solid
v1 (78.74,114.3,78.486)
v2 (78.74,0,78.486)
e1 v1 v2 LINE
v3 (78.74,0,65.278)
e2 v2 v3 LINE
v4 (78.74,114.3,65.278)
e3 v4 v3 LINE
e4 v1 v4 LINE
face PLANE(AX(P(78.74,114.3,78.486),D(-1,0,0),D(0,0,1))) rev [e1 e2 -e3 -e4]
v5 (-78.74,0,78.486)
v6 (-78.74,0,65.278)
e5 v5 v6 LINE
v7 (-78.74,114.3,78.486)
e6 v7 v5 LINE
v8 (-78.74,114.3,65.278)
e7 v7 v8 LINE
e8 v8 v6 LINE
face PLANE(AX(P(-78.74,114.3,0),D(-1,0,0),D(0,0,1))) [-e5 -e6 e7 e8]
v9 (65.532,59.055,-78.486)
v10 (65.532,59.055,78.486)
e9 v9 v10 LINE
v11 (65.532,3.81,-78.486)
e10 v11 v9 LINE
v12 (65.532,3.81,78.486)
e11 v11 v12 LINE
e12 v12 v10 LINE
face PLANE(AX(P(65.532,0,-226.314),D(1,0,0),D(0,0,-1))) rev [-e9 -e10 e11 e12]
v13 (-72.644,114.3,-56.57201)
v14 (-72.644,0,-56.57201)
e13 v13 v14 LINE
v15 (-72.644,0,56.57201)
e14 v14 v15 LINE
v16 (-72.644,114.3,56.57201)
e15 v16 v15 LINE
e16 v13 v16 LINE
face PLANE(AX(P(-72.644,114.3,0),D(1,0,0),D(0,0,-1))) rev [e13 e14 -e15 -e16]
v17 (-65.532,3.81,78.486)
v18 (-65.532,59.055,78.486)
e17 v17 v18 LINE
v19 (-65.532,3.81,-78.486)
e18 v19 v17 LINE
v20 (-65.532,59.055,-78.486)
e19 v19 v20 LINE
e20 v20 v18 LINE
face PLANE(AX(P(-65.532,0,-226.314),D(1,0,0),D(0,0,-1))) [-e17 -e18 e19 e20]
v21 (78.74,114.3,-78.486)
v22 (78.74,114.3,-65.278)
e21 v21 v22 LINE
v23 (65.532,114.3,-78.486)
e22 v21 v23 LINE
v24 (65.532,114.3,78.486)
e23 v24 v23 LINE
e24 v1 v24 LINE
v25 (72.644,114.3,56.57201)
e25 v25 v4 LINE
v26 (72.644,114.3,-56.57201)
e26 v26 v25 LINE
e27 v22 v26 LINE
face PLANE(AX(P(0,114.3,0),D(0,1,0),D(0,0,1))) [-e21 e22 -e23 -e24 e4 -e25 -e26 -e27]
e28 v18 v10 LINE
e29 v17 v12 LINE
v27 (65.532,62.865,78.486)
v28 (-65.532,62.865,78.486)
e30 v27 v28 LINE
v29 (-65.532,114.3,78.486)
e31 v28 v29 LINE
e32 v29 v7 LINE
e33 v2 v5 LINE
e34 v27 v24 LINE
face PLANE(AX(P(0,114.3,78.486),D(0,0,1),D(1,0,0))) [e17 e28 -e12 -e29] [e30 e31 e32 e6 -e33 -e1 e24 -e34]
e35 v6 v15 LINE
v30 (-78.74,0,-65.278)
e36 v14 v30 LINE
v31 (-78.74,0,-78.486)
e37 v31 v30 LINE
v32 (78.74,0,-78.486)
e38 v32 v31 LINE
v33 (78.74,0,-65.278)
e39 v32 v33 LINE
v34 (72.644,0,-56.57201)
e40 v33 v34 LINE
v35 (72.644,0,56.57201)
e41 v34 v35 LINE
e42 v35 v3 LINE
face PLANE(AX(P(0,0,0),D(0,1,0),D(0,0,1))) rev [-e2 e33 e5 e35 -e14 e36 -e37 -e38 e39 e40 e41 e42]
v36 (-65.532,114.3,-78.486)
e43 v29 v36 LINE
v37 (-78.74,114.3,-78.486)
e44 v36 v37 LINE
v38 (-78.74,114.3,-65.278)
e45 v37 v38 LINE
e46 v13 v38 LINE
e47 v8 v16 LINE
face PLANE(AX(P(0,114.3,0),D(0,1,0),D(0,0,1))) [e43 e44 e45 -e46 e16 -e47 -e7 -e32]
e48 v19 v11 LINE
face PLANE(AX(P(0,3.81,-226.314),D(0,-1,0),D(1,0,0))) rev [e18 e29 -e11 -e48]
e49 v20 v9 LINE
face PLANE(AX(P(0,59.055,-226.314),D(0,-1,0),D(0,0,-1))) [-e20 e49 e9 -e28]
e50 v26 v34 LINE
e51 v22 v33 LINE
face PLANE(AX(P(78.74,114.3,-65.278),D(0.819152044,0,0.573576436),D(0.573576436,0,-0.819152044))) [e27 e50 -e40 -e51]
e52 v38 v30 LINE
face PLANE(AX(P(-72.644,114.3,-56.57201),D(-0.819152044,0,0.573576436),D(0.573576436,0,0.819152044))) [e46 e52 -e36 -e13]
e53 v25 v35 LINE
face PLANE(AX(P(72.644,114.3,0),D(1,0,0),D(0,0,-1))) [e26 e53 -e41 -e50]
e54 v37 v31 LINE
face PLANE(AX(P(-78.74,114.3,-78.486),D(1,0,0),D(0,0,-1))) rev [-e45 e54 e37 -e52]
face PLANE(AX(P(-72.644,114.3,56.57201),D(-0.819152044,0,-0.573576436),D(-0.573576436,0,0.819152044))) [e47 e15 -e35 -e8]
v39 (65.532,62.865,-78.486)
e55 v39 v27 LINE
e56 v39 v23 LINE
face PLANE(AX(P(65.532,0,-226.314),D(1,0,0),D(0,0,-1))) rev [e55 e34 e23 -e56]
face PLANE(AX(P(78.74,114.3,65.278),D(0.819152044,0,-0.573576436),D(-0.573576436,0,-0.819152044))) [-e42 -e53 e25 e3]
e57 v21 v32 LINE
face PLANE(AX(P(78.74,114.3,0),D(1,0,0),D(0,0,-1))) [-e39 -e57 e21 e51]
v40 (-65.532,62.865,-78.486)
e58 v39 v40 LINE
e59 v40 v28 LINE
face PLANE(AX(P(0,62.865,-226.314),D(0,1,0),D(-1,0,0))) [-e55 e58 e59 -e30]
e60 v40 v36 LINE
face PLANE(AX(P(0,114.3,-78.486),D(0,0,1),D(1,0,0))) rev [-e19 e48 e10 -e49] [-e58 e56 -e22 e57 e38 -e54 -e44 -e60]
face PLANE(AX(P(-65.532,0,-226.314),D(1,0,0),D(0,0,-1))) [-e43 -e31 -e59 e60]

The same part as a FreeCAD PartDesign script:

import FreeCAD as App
import Part
import Sketcher

V = App.Vector
Q = App.Units.Quantity

doc = App.newDocument("Part")
body = doc.addObject("PartDesign::Body", "Body")

sketch1 = body.newObject("Sketcher::SketchObject", "Sketch")
sketch1.AttachmentSupport = (doc.getObject("XZ_Plane"), [""])
sketch1.MapMode = "FlatFace"
sketch1.addGeometry(Part.LineSegment(V(-73, 65, 0), V(-79, 65, 0)), False)
sketch1.addGeometry(Part.LineSegment(V(-79, 65, 0), V(-79, 78, 0)), False)
sketch1.addGeometry(Part.LineSegment(V(-79, 78, 0), V(79, 78, 0)), False)
sketch1.addGeometry(Part.LineSegment(V(79, 78, 0), V(79, 65, 0)), False)
sketch1.addGeometry(Part.LineSegment(V(79, 65, 0), V(73, 65, 0)), False)
sketch1.addGeometry(Part.LineSegment(V(73, 65, 0), V(73, -65, 0)), False)
sketch1.addGeometry(Part.LineSegment(V(73, -65, 0), V(79, -65, 0)), False)
sketch1.addGeometry(Part.LineSegment(V(79, -65, 0), V(79, -78, 0)), False)
sketch1.addGeometry(Part.LineSegment(V(79, -78, 0), V(-79, -78, 0)), False)
sketch1.addGeometry(Part.LineSegment(V(-79, -78, 0), V(-79, -65, 0)), False)
sketch1.addGeometry(Part.LineSegment(V(-79, -65, 0), V(-73, -65, 0)), False)
sketch1.addGeometry(Part.LineSegment(V(-73, -65, 0), V(-73, 65, 0)), False)
sketch1.addConstraint(Sketcher.Constraint("Coincident", 0, 2, 1, 1))
sketch1.addConstraint(Sketcher.Constraint("Coincident", 1, 2, 2, 1))
sketch1.addConstraint(Sketcher.Constraint("Coincident", 2, 2, 3, 1))
sketch1.addConstraint(Sketcher.Constraint("Coincident", 3, 2, 4, 1))
sketch1.addConstraint(Sketcher.Constraint("Coincident", 4, 2, 5, 1))
sketch1.addConstraint(Sketcher.Constraint("Coincident", 5, 2, 6, 1))
sketch1.addConstraint(Sketcher.Constraint("Coincident", 6, 2, 7, 1))
sketch1.addConstraint(Sketcher.Constraint("Coincident", 7, 2, 8, 1))
sketch1.addConstraint(Sketcher.Constraint("Coincident", 8, 2, 9, 1))
sketch1.addConstraint(Sketcher.Constraint("Coincident", 9, 2, 10, 1))
sketch1.addConstraint(Sketcher.Constraint("Coincident", 10, 2, 11, 1))
sketch1.addConstraint(Sketcher.Constraint("Coincident", 11, 2, 0, 1))
sketch1.addConstraint(Sketcher.Constraint("Horizontal", 0))
sketch1.addConstraint(Sketcher.Constraint("Vertical", 1))
sketch1.addConstraint(Sketcher.Constraint("Horizontal", 2))
sketch1.addConstraint(Sketcher.Constraint("Vertical", 3))
sketch1.addConstraint(Sketcher.Constraint("Horizontal", 4))
sketch1.addConstraint(Sketcher.Constraint("Vertical", 5))
sketch1.addConstraint(Sketcher.Constraint("Horizontal", 6))
sketch1.addConstraint(Sketcher.Constraint("Vertical", 7))
sketch1.addConstraint(Sketcher.Constraint("Horizontal", 8))
sketch1.addConstraint(Sketcher.Constraint("Vertical", 9))
sketch1.addConstraint(Sketcher.Constraint("Horizontal", 10))
sketch1.addConstraint(Sketcher.Constraint("Vertical", 11))
sketch1.addConstraint(Sketcher.Constraint("Symmetric", 0, 2, 6, 2, -1, 1))
sketch1.addConstraint(Sketcher.Constraint("Symmetric", 2, 2, 8, 2, -1, 1))
sketch1.addConstraint(Sketcher.Constraint("Symmetric", 4, 2, 10, 2, -1, 1))
sketch1.addConstraint(Sketcher.Constraint("Symmetric", 0, 2, 3, 2, -2))
sketch1.addConstraint(Sketcher.Constraint("DistanceX", 2, 1, 2, 2, Q("6.2 in")))
sketch1.addConstraint(Sketcher.Constraint("DistanceX", 0, 2, 0, 1, Q("0.24 in")))
sketch1.addConstraint(Sketcher.Constraint("DistanceY", 1, 1, 1, 2, Q("0.52 in")))
sketch1.addConstraint(Sketcher.Constraint("DistanceY", 5, 2, 5, 1, Q("5.14 in")))
pad1 = body.newObject("PartDesign::Pad", "Pad")
pad1.Profile = sketch1
pad1.Length = Q("4.5 in")
pad1.Reversed = True

sketch2 = body.newObject("Sketcher::SketchObject", "Sketch001")
sketch2.AttachmentSupport = (doc.getObject("XY_Plane"), [""])
sketch2.MapMode = "FlatFace"
sketch2.AttachmentOffset = App.Placement(V(0, 0, 3.09 * 25.4), App.Rotation())
sketch2.addGeometry(Part.LineSegment(V(-66, 59, 0), V(-66, 4, 0)), False)
sketch2.addGeometry(Part.LineSegment(V(-66, 4, 0), V(66, 4, 0)), False)
sketch2.addGeometry(Part.LineSegment(V(66, 4, 0), V(66, 59, 0)), False)
sketch2.addGeometry(Part.LineSegment(V(66, 59, 0), V(-66, 59, 0)), False)
sketch2.addGeometry(Part.LineSegment(V(-66, 114, 0), V(-66, 63, 0)), False)
sketch2.addGeometry(Part.LineSegment(V(-66, 63, 0), V(66, 63, 0)), False)
sketch2.addGeometry(Part.LineSegment(V(66, 63, 0), V(66, 114, 0)), False)
sketch2.addGeometry(Part.LineSegment(V(66, 114, 0), V(-66, 114, 0)), False)
sketch2.addConstraint(Sketcher.Constraint("Coincident", 0, 2, 1, 1))
sketch2.addConstraint(Sketcher.Constraint("Coincident", 1, 2, 2, 1))
sketch2.addConstraint(Sketcher.Constraint("Coincident", 2, 2, 3, 1))
sketch2.addConstraint(Sketcher.Constraint("Coincident", 3, 2, 0, 1))
sketch2.addConstraint(Sketcher.Constraint("Coincident", 4, 2, 5, 1))
sketch2.addConstraint(Sketcher.Constraint("Coincident", 5, 2, 6, 1))
sketch2.addConstraint(Sketcher.Constraint("Coincident", 6, 2, 7, 1))
sketch2.addConstraint(Sketcher.Constraint("Coincident", 7, 2, 4, 1))
sketch2.addConstraint(Sketcher.Constraint("Vertical", 0))
sketch2.addConstraint(Sketcher.Constraint("Horizontal", 1))
sketch2.addConstraint(Sketcher.Constraint("Vertical", 2))
sketch2.addConstraint(Sketcher.Constraint("Horizontal", 3))
sketch2.addConstraint(Sketcher.Constraint("Vertical", 4))
sketch2.addConstraint(Sketcher.Constraint("Horizontal", 5))
sketch2.addConstraint(Sketcher.Constraint("Vertical", 6))
sketch2.addConstraint(Sketcher.Constraint("Horizontal", 7))
sketch2.addConstraint(Sketcher.Constraint("Vertical", 3, 2, 4, 2))
sketch2.addConstraint(Sketcher.Constraint("Vertical", 2, 2, 5, 2))
sketch2.addConstraint(Sketcher.Constraint("DistanceX", 1, 1, 1, 2, Q("5.16 in")))
sketch2.addConstraint(Sketcher.Constraint("DistanceY", -1, 1, 6, 2, Q("4.5 in")))
sketch2.addConstraint(Sketcher.Constraint("DistanceY", 0, 2, 0, 1, Q("2.175 in")))
sketch2.addConstraint(Sketcher.Constraint("DistanceY", 4, 2, 4, 1, Q("2.025 in")))
sketch2.addConstraint(Sketcher.Constraint("DistanceX", 0, 2, -1, 1, Q("2.58 in")))
sketch2.addConstraint(Sketcher.Constraint("DistanceY", -1, 1, 0, 2, Q("0.15 in")))
pocket1 = body.newObject("PartDesign::Pocket", "Pocket")
pocket1.Profile = sketch2
pocket1.Length = Q("12 in")

sketch3 = body.newObject("Sketcher::SketchObject", "Sketch002")
sketch3.AttachmentSupport = (doc.getObject("XZ_Plane"), [""])
sketch3.MapMode = "FlatFace"
sketch3.addGeometry(Part.LineSegment(V(-73, 65, 0), V(-79, 65, 0)), False)
sketch3.addGeometry(Part.LineSegment(V(-79, 65, 0), V(-73, 57, 0)), False)
sketch3.addGeometry(Part.LineSegment(V(-73, 57, 0), V(-73, 65, 0)), False)
sketch3.addGeometry(Part.LineSegment(V(-79, -65, 0), V(-73, -65, 0)), False)
sketch3.addGeometry(Part.LineSegment(V(-73, -65, 0), V(-73, -57, 0)), False)
sketch3.addGeometry(Part.LineSegment(V(-73, -57, 0), V(-79, -65, 0)), False)
sketch3.addGeometry(Part.LineSegment(V(73, -57, 0), V(73, -65, 0)), False)
sketch3.addGeometry(Part.LineSegment(V(73, -65, 0), V(79, -65, 0)), False)
sketch3.addGeometry(Part.LineSegment(V(79, -65, 0), V(73, -57, 0)), False)
sketch3.addGeometry(Part.LineSegment(V(73, 65, 0), V(73, 57, 0)), False)
sketch3.addGeometry(Part.LineSegment(V(73, 57, 0), V(79, 65, 0)), False)
sketch3.addGeometry(Part.LineSegment(V(79, 65, 0), V(73, 65, 0)), False)
sketch3.addConstraint(Sketcher.Constraint("Coincident", 0, 2, 1, 1))
sketch3.addConstraint(Sketcher.Constraint("Coincident", 1, 2, 2, 1))
sketch3.addConstraint(Sketcher.Constraint("Coincident", 2, 2, 0, 1))
sketch3.addConstraint(Sketcher.Constraint("Coincident", 3, 2, 4, 1))
sketch3.addConstraint(Sketcher.Constraint("Coincident", 4, 2, 5, 1))
sketch3.addConstraint(Sketcher.Constraint("Coincident", 5, 2, 3, 1))
sketch3.addConstraint(Sketcher.Constraint("Coincident", 6, 2, 7, 1))
sketch3.addConstraint(Sketcher.Constraint("Coincident", 7, 2, 8, 1))
sketch3.addConstraint(Sketcher.Constraint("Coincident", 8, 2, 6, 1))
sketch3.addConstraint(Sketcher.Constraint("Coincident", 9, 2, 10, 1))
sketch3.addConstraint(Sketcher.Constraint("Coincident", 10, 2, 11, 1))
sketch3.addConstraint(Sketcher.Constraint("Coincident", 11, 2, 9, 1))
sketch3.addConstraint(Sketcher.Constraint("Horizontal", 0))
sketch3.addConstraint(Sketcher.Constraint("Vertical", 2))
sketch3.addConstraint(Sketcher.Constraint("Horizontal", 3))
sketch3.addConstraint(Sketcher.Constraint("Vertical", 4))
sketch3.addConstraint(Sketcher.Constraint("Vertical", 6))
sketch3.addConstraint(Sketcher.Constraint("Horizontal", 7))
sketch3.addConstraint(Sketcher.Constraint("Vertical", 9))
sketch3.addConstraint(Sketcher.Constraint("Horizontal", 11))
sketch3.addConstraint(Sketcher.Constraint("Symmetric", 2, 2, 6, 2, -1, 1))
sketch3.addConstraint(Sketcher.Constraint("Symmetric", 4, 2, 9, 2, -1, 1))
sketch3.addConstraint(Sketcher.Constraint("Symmetric", 5, 2, 10, 2, -1, 1))
sketch3.addConstraint(Sketcher.Constraint("Symmetric", 3, 2, 6, 2, -2))
sketch3.addConstraint(Sketcher.Constraint("Parallel", 1, 8))
sketch3.addConstraint(Sketcher.Constraint("Horizontal", 4, 2, 8, 2))
sketch3.addConstraint(Sketcher.Constraint("Horizontal", 1, 2, 9, 2))
sketch3.addConstraint(Sketcher.Constraint("Vertical", 0, 2, 5, 2))
sketch3.addConstraint(Sketcher.Constraint("Angle", 1, Q("-55 deg")))
sketch3.addConstraint(Sketcher.Constraint("DistanceX", 0, 2, 0, 1, Q("0.24 in")))
sketch3.addConstraint(Sketcher.Constraint("DistanceX", 0, 2, -1, 1, Q("3.1 in")))
sketch3.addConstraint(Sketcher.Constraint("DistanceY", -1, 1, 0, 2, Q("2.57 in")))
pad2 = body.newObject("PartDesign::Pad", "Pad001")
pad2.Profile = sketch3
pad2.Length = Q("4.5 in")
pad2.Reversed = True

doc.recompute()
